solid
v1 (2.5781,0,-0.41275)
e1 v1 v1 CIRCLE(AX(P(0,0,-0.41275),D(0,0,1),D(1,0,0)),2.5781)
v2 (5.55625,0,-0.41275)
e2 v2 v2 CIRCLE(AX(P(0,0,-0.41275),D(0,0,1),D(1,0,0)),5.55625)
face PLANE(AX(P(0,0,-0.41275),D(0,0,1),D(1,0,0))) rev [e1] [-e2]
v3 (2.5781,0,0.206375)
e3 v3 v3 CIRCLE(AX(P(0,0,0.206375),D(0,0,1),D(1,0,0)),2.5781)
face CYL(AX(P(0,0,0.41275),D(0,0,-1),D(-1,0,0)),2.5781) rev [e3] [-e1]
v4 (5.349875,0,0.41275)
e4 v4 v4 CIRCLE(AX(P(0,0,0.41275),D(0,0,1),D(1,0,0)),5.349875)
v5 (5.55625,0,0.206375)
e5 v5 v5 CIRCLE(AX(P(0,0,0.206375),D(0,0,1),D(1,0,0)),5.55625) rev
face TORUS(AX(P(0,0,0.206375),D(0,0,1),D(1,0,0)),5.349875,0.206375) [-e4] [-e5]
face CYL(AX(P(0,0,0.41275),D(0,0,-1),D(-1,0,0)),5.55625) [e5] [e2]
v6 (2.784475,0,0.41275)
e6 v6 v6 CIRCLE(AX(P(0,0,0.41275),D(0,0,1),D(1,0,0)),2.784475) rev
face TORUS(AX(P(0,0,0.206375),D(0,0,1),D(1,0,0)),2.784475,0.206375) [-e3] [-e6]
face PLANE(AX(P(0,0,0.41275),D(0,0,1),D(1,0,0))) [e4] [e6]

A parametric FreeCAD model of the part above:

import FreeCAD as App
import Part
import Sketcher

V = App.Vector
Q = App.Units.Quantity


def edges_at(feature, points):
    """Names of the edges that pass closest to the given points."""
    edges = feature.Shape.Edges
    near = lambda p: min(range(len(edges)), key=lambda i: edges[i].distToShape(Part.Vertex(*p))[0])
    return sorted({f"Edge{near(p) + 1}" for p in points})

doc = App.newDocument("Part")
params = doc.addObject("Spreadsheet::Sheet", "Params")
for row, (alias, value) in enumerate([
    ("sketch1_diameter", "0.4375 in"),
    ("sketch1_diameter2", "0.203 in"),
    ("pad1_length", "0.41275 mm"),
    ("pad1_length2", "0.41275 mm"),
    ("fillet_radius", "0.206375 mm"),
], start=1):
    params.set(f"A{row}", alias)
    params.set(f"B{row}", "=" + value)
    params.setAlias(f"B{row}", alias)

body = doc.addObject("PartDesign::Body", "Body")

sketch1 = doc.addObject("Sketcher::SketchObject", "Sketch")
body.addObject(sketch1)
sketch1.AttachmentSupport = (doc.XY_Plane, [""])
sketch1.MapMode = "FlatFace"
sketch1.addGeometry([
    Part.Circle(V(0, 0, 0), V(0, 0, 1), 5.6),
    Part.Circle(V(0, 0, 0), V(0, 0, 1), 2.6),
], False)
sketch1.addConstraint([
    Sketcher.Constraint("Coincident", 0, 3, -1, 1),
    Sketcher.Constraint("Coincident", 1, 3, -1, 1),
    Sketcher.Constraint("Diameter", 0, Q("0.4375 in")),
    Sketcher.Constraint("Diameter", 1, Q("0.203 in")),
])
sketch1.setExpression("Constraints[2]", "Params.sketch1_diameter")
sketch1.setExpression("Constraints[3]", "Params.sketch1_diameter2")
pad1 = doc.addObject("PartDesign::Pad", "Pad")
body.addObject(pad1)
pad1.Profile = sketch1
pad1.Type = "TwoLengths"
pad1.setExpression("Length", "Params.pad1_length")
pad1.setExpression("Length2", "Params.pad1_length2")
doc.recompute()

fillet = doc.addObject("PartDesign::Fillet", "Fillet")
body.addObject(fillet)
fillet.Base = (pad1, edges_at(pad1, [(-5.556, 0, 0.413), (-2.578, 0, 0.413)]))
fillet.setExpression("Radius", "Params.fillet_radius")

doc.recompute()
